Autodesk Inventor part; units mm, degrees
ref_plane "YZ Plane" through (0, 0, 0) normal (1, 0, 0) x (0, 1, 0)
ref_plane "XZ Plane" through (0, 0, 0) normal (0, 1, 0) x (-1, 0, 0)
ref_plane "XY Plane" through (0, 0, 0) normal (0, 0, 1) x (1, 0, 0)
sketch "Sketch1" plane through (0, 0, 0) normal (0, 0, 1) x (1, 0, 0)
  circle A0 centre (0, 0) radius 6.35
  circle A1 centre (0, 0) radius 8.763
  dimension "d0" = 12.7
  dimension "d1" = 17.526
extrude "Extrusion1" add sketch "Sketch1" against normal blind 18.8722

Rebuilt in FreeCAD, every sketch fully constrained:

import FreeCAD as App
import Part
import Sketcher
from FreeCAD import Vector
Q = App.Units.Quantity

doc = App.newDocument("Part")
body = doc.addObject("PartDesign::Body", "Body")

# Sketch on XY plane
sketch1 = doc.addObject("Sketcher::SketchObject", "Sketch")
body.addObject(sketch1)
sketch1.AttachmentSupport = (doc.XY_Plane, [""])
sketch1.MapMode = "FlatFace"
sketch1.addGeometry(Part.Circle(Vector(0, 0, 0), Vector(0, 0, 1), 8.763), False)
sketch1.addGeometry(Part.Circle(Vector(0, 0, 0), Vector(0, 0, 1), 6.35), False)
sketch1.addConstraint(Sketcher.Constraint("Coincident", 0, 3, -1, 1))
sketch1.addConstraint(Sketcher.Constraint("Coincident", 1, 3, -1, 1))
sketch1.addConstraint(Sketcher.Constraint("Diameter", 1, Q("0.5 in")))
sketch1.addConstraint(Sketcher.Constraint("Diameter", 0, Q("0.69 in")))
pad1 = doc.addObject("PartDesign::Pad", "Pad")
body.addObject(pad1)
pad1.Profile = sketch1
pad1.Length = Q("0.743 in")
pad1.Reversed = True

doc.recompute()
